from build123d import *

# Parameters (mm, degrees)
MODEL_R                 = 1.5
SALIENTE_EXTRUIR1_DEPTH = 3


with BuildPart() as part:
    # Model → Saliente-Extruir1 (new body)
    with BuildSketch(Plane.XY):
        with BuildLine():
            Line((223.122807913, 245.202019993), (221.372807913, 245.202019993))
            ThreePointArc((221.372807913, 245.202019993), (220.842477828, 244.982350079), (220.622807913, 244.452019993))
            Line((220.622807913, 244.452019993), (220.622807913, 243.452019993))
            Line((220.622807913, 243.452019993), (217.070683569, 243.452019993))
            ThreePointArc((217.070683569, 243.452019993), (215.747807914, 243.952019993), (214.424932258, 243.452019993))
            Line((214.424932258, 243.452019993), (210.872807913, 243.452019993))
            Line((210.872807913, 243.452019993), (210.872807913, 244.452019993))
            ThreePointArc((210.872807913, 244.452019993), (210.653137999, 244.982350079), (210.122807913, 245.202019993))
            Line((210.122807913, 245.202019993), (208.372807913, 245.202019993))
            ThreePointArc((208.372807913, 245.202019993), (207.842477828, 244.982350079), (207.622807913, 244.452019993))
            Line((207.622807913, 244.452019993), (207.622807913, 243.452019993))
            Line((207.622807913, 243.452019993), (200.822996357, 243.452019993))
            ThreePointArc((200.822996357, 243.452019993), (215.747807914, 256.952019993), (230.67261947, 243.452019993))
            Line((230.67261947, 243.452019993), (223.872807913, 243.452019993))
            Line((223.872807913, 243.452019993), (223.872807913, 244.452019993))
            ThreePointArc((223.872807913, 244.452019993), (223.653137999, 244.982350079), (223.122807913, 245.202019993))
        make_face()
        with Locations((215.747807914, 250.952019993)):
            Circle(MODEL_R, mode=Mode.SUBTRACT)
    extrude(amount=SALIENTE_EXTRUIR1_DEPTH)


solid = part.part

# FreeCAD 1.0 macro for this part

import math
import FreeCAD as App
import Part
import Sketcher
from FreeCAD import Vector

doc = App.newDocument("Part")
body = doc.addObject("PartDesign::Body", "Body")

# Sketch on XY plane
sketch1 = body.newObject("Sketcher::SketchObject", "Sketch")
sketch1.AttachmentSupport = (doc.getObject("XY_Plane"), [""])
sketch1.MapMode = "FlatFace"
sketch1.addGeometry([
    Part.LineSegment(Vector(221.4, 245.2, 0), Vector(223.1, 245.2, 0)),  # 0
    Part.ArcOfCircle(Part.Circle(Vector(223.1, 244.5, 0), Vector(0, 0, 1), 0.8), math.radians(0), math.radians(90)),  # 1
    Part.LineSegment(Vector(223.9, 244.5, 0), Vector(223.9, 243.5, 0)),  # 2
    Part.LineSegment(Vector(223.9, 243.5, 0), Vector(230.7, 243.5, 0)),  # 3
    Part.ArcOfCircle(Part.Circle(Vector(215.7, 242, 0), Vector(0, 0, 1), 15), math.radians(6), math.radians(174)),  # 4
    Part.LineSegment(Vector(200.8, 243.5, 0), Vector(207.6, 243.5, 0)),  # 5
    Part.LineSegment(Vector(207.6, 243.5, 0), Vector(207.6, 244.5, 0)),  # 6
    Part.ArcOfCircle(Part.Circle(Vector(208.4, 244.5, 0), Vector(0, 0, 1), 0.8), math.radians(90), math.radians(180)),  # 7
    Part.LineSegment(Vector(208.4, 245.2, 0), Vector(210.1, 245.2, 0)),  # 8
    Part.ArcOfCircle(Part.Circle(Vector(210.1, 244.5, 0), Vector(0, 0, 1), 0.8), math.radians(0), math.radians(90)),  # 9
    Part.LineSegment(Vector(210.9, 244.5, 0), Vector(210.9, 243.5, 0)),  # 10
    Part.LineSegment(Vector(210.9, 243.5, 0), Vector(214.4, 243.5, 0)),  # 11
    Part.ArcOfCircle(Part.Circle(Vector(215.7, 242, 0), Vector(0, 0, 1), 2), math.radians(49), math.radians(131)),  # 12
    Part.LineSegment(Vector(217.1, 243.5, 0), Vector(220.6, 243.5, 0)),  # 13
    Part.LineSegment(Vector(220.6, 243.5, 0), Vector(220.6, 244.5, 0)),  # 14
    Part.ArcOfCircle(Part.Circle(Vector(221.4, 244.5, 0), Vector(0, 0, 1), 0.8), math.radians(90), math.radians(180)),  # 15
    Part.Circle(Vector(215.7, 251, 0), Vector(0, 0, 1), 1.5),  # 16
], False)
sketch1.addConstraint([
    Sketcher.Constraint("Tangent", 0, 2, 1, 2),
    Sketcher.Constraint("Tangent", 1, 1, 2, 1),
    Sketcher.Constraint("Coincident", 2, 2, 3, 1),
    Sketcher.Constraint("Coincident", 3, 2, 4, 1),
    Sketcher.Constraint("Coincident", 4, 2, 5, 1),
    Sketcher.Constraint("Coincident", 5, 2, 6, 1),
    Sketcher.Constraint("Tangent", 6, 2, 7, 2),
    Sketcher.Constraint("Tangent", 7, 1, 8, 1),
    Sketcher.Constraint("Tangent", 8, 2, 9, 2),
    Sketcher.Constraint("Tangent", 9, 1, 10, 1),
    Sketcher.Constraint("Coincident", 10, 2, 11, 1),
    Sketcher.Constraint("Coincident", 11, 2, 12, 2),
    Sketcher.Constraint("Coincident", 12, 1, 13, 1),
    Sketcher.Constraint("Coincident", 13, 2, 14, 1),
    Sketcher.Constraint("Tangent", 14, 2, 15, 2),
    Sketcher.Constraint("Tangent", 15, 1, 0, 1),
    Sketcher.Constraint("Horizontal", 0),
    Sketcher.Constraint("Vertical", 2),
    Sketcher.Constraint("Horizontal", 3),
    Sketcher.Constraint("Horizontal", 5),
    Sketcher.Constraint("Vertical", 6),
    Sketcher.Constraint("Horizontal", 8),
    Sketcher.Constraint("Vertical", 10),
    Sketcher.Constraint("Horizontal", 11),
    Sketcher.Constraint("Horizontal", 13),
    Sketcher.Constraint("Vertical", 14),
    Sketcher.Constraint("Coincident", 12, 3, 4, 3),
    Sketcher.Constraint("Equal", 1, 7),
    Sketcher.Constraint("Equal", 7, 9),
    Sketcher.Constraint("Equal", 9, 15),
    Sketcher.Constraint("Horizontal", 1, 3, 7, 3),
    Sketcher.Constraint("Horizontal", 3, 2, 4, 2),
    Sketcher.Constraint("Horizontal", 5, 2, 10, 2),
    Sketcher.Constraint("Horizontal", 11, 2, 12, 1),
    Sketcher.Constraint("Vertical", 12, 3, 16, 3),
    Sketcher.Constraint("Equal", 3, 5),
    Sketcher.Constraint("Equal", 0, 8),
    Sketcher.Constraint("Diameter", 16, 3.0),
    Sketcher.Constraint("Radius", 4, 15.0),
    Sketcher.Constraint("Radius", 12, 2.0),
    Sketcher.Constraint("DistanceY", 2, 2, 2, 1, 1.0),
    Sketcher.Constraint("Radius", 1, 0.75),
    Sketcher.Constraint("DistanceX", 9, 3, 1, 3, 13.0),
    Sketcher.Constraint("DistanceY", 4, 3, 16, 3, 9.0),
    Sketcher.Constraint("DistanceX", 0, 1, 0, 2, 1.75),
    Sketcher.Constraint("DistanceY", 4, 3, 1, 3, 2.5),
    Sketcher.Constraint("DistanceY", -1, 1, 1, 3, 244.45202),
    Sketcher.Constraint("DistanceX", -1, 1, 3, 2, 230.672619),
])
pad1 = body.newObject("PartDesign::Pad", "Pad")
pad1.Profile = sketch1
pad1.Length = 3

doc.recompute()
